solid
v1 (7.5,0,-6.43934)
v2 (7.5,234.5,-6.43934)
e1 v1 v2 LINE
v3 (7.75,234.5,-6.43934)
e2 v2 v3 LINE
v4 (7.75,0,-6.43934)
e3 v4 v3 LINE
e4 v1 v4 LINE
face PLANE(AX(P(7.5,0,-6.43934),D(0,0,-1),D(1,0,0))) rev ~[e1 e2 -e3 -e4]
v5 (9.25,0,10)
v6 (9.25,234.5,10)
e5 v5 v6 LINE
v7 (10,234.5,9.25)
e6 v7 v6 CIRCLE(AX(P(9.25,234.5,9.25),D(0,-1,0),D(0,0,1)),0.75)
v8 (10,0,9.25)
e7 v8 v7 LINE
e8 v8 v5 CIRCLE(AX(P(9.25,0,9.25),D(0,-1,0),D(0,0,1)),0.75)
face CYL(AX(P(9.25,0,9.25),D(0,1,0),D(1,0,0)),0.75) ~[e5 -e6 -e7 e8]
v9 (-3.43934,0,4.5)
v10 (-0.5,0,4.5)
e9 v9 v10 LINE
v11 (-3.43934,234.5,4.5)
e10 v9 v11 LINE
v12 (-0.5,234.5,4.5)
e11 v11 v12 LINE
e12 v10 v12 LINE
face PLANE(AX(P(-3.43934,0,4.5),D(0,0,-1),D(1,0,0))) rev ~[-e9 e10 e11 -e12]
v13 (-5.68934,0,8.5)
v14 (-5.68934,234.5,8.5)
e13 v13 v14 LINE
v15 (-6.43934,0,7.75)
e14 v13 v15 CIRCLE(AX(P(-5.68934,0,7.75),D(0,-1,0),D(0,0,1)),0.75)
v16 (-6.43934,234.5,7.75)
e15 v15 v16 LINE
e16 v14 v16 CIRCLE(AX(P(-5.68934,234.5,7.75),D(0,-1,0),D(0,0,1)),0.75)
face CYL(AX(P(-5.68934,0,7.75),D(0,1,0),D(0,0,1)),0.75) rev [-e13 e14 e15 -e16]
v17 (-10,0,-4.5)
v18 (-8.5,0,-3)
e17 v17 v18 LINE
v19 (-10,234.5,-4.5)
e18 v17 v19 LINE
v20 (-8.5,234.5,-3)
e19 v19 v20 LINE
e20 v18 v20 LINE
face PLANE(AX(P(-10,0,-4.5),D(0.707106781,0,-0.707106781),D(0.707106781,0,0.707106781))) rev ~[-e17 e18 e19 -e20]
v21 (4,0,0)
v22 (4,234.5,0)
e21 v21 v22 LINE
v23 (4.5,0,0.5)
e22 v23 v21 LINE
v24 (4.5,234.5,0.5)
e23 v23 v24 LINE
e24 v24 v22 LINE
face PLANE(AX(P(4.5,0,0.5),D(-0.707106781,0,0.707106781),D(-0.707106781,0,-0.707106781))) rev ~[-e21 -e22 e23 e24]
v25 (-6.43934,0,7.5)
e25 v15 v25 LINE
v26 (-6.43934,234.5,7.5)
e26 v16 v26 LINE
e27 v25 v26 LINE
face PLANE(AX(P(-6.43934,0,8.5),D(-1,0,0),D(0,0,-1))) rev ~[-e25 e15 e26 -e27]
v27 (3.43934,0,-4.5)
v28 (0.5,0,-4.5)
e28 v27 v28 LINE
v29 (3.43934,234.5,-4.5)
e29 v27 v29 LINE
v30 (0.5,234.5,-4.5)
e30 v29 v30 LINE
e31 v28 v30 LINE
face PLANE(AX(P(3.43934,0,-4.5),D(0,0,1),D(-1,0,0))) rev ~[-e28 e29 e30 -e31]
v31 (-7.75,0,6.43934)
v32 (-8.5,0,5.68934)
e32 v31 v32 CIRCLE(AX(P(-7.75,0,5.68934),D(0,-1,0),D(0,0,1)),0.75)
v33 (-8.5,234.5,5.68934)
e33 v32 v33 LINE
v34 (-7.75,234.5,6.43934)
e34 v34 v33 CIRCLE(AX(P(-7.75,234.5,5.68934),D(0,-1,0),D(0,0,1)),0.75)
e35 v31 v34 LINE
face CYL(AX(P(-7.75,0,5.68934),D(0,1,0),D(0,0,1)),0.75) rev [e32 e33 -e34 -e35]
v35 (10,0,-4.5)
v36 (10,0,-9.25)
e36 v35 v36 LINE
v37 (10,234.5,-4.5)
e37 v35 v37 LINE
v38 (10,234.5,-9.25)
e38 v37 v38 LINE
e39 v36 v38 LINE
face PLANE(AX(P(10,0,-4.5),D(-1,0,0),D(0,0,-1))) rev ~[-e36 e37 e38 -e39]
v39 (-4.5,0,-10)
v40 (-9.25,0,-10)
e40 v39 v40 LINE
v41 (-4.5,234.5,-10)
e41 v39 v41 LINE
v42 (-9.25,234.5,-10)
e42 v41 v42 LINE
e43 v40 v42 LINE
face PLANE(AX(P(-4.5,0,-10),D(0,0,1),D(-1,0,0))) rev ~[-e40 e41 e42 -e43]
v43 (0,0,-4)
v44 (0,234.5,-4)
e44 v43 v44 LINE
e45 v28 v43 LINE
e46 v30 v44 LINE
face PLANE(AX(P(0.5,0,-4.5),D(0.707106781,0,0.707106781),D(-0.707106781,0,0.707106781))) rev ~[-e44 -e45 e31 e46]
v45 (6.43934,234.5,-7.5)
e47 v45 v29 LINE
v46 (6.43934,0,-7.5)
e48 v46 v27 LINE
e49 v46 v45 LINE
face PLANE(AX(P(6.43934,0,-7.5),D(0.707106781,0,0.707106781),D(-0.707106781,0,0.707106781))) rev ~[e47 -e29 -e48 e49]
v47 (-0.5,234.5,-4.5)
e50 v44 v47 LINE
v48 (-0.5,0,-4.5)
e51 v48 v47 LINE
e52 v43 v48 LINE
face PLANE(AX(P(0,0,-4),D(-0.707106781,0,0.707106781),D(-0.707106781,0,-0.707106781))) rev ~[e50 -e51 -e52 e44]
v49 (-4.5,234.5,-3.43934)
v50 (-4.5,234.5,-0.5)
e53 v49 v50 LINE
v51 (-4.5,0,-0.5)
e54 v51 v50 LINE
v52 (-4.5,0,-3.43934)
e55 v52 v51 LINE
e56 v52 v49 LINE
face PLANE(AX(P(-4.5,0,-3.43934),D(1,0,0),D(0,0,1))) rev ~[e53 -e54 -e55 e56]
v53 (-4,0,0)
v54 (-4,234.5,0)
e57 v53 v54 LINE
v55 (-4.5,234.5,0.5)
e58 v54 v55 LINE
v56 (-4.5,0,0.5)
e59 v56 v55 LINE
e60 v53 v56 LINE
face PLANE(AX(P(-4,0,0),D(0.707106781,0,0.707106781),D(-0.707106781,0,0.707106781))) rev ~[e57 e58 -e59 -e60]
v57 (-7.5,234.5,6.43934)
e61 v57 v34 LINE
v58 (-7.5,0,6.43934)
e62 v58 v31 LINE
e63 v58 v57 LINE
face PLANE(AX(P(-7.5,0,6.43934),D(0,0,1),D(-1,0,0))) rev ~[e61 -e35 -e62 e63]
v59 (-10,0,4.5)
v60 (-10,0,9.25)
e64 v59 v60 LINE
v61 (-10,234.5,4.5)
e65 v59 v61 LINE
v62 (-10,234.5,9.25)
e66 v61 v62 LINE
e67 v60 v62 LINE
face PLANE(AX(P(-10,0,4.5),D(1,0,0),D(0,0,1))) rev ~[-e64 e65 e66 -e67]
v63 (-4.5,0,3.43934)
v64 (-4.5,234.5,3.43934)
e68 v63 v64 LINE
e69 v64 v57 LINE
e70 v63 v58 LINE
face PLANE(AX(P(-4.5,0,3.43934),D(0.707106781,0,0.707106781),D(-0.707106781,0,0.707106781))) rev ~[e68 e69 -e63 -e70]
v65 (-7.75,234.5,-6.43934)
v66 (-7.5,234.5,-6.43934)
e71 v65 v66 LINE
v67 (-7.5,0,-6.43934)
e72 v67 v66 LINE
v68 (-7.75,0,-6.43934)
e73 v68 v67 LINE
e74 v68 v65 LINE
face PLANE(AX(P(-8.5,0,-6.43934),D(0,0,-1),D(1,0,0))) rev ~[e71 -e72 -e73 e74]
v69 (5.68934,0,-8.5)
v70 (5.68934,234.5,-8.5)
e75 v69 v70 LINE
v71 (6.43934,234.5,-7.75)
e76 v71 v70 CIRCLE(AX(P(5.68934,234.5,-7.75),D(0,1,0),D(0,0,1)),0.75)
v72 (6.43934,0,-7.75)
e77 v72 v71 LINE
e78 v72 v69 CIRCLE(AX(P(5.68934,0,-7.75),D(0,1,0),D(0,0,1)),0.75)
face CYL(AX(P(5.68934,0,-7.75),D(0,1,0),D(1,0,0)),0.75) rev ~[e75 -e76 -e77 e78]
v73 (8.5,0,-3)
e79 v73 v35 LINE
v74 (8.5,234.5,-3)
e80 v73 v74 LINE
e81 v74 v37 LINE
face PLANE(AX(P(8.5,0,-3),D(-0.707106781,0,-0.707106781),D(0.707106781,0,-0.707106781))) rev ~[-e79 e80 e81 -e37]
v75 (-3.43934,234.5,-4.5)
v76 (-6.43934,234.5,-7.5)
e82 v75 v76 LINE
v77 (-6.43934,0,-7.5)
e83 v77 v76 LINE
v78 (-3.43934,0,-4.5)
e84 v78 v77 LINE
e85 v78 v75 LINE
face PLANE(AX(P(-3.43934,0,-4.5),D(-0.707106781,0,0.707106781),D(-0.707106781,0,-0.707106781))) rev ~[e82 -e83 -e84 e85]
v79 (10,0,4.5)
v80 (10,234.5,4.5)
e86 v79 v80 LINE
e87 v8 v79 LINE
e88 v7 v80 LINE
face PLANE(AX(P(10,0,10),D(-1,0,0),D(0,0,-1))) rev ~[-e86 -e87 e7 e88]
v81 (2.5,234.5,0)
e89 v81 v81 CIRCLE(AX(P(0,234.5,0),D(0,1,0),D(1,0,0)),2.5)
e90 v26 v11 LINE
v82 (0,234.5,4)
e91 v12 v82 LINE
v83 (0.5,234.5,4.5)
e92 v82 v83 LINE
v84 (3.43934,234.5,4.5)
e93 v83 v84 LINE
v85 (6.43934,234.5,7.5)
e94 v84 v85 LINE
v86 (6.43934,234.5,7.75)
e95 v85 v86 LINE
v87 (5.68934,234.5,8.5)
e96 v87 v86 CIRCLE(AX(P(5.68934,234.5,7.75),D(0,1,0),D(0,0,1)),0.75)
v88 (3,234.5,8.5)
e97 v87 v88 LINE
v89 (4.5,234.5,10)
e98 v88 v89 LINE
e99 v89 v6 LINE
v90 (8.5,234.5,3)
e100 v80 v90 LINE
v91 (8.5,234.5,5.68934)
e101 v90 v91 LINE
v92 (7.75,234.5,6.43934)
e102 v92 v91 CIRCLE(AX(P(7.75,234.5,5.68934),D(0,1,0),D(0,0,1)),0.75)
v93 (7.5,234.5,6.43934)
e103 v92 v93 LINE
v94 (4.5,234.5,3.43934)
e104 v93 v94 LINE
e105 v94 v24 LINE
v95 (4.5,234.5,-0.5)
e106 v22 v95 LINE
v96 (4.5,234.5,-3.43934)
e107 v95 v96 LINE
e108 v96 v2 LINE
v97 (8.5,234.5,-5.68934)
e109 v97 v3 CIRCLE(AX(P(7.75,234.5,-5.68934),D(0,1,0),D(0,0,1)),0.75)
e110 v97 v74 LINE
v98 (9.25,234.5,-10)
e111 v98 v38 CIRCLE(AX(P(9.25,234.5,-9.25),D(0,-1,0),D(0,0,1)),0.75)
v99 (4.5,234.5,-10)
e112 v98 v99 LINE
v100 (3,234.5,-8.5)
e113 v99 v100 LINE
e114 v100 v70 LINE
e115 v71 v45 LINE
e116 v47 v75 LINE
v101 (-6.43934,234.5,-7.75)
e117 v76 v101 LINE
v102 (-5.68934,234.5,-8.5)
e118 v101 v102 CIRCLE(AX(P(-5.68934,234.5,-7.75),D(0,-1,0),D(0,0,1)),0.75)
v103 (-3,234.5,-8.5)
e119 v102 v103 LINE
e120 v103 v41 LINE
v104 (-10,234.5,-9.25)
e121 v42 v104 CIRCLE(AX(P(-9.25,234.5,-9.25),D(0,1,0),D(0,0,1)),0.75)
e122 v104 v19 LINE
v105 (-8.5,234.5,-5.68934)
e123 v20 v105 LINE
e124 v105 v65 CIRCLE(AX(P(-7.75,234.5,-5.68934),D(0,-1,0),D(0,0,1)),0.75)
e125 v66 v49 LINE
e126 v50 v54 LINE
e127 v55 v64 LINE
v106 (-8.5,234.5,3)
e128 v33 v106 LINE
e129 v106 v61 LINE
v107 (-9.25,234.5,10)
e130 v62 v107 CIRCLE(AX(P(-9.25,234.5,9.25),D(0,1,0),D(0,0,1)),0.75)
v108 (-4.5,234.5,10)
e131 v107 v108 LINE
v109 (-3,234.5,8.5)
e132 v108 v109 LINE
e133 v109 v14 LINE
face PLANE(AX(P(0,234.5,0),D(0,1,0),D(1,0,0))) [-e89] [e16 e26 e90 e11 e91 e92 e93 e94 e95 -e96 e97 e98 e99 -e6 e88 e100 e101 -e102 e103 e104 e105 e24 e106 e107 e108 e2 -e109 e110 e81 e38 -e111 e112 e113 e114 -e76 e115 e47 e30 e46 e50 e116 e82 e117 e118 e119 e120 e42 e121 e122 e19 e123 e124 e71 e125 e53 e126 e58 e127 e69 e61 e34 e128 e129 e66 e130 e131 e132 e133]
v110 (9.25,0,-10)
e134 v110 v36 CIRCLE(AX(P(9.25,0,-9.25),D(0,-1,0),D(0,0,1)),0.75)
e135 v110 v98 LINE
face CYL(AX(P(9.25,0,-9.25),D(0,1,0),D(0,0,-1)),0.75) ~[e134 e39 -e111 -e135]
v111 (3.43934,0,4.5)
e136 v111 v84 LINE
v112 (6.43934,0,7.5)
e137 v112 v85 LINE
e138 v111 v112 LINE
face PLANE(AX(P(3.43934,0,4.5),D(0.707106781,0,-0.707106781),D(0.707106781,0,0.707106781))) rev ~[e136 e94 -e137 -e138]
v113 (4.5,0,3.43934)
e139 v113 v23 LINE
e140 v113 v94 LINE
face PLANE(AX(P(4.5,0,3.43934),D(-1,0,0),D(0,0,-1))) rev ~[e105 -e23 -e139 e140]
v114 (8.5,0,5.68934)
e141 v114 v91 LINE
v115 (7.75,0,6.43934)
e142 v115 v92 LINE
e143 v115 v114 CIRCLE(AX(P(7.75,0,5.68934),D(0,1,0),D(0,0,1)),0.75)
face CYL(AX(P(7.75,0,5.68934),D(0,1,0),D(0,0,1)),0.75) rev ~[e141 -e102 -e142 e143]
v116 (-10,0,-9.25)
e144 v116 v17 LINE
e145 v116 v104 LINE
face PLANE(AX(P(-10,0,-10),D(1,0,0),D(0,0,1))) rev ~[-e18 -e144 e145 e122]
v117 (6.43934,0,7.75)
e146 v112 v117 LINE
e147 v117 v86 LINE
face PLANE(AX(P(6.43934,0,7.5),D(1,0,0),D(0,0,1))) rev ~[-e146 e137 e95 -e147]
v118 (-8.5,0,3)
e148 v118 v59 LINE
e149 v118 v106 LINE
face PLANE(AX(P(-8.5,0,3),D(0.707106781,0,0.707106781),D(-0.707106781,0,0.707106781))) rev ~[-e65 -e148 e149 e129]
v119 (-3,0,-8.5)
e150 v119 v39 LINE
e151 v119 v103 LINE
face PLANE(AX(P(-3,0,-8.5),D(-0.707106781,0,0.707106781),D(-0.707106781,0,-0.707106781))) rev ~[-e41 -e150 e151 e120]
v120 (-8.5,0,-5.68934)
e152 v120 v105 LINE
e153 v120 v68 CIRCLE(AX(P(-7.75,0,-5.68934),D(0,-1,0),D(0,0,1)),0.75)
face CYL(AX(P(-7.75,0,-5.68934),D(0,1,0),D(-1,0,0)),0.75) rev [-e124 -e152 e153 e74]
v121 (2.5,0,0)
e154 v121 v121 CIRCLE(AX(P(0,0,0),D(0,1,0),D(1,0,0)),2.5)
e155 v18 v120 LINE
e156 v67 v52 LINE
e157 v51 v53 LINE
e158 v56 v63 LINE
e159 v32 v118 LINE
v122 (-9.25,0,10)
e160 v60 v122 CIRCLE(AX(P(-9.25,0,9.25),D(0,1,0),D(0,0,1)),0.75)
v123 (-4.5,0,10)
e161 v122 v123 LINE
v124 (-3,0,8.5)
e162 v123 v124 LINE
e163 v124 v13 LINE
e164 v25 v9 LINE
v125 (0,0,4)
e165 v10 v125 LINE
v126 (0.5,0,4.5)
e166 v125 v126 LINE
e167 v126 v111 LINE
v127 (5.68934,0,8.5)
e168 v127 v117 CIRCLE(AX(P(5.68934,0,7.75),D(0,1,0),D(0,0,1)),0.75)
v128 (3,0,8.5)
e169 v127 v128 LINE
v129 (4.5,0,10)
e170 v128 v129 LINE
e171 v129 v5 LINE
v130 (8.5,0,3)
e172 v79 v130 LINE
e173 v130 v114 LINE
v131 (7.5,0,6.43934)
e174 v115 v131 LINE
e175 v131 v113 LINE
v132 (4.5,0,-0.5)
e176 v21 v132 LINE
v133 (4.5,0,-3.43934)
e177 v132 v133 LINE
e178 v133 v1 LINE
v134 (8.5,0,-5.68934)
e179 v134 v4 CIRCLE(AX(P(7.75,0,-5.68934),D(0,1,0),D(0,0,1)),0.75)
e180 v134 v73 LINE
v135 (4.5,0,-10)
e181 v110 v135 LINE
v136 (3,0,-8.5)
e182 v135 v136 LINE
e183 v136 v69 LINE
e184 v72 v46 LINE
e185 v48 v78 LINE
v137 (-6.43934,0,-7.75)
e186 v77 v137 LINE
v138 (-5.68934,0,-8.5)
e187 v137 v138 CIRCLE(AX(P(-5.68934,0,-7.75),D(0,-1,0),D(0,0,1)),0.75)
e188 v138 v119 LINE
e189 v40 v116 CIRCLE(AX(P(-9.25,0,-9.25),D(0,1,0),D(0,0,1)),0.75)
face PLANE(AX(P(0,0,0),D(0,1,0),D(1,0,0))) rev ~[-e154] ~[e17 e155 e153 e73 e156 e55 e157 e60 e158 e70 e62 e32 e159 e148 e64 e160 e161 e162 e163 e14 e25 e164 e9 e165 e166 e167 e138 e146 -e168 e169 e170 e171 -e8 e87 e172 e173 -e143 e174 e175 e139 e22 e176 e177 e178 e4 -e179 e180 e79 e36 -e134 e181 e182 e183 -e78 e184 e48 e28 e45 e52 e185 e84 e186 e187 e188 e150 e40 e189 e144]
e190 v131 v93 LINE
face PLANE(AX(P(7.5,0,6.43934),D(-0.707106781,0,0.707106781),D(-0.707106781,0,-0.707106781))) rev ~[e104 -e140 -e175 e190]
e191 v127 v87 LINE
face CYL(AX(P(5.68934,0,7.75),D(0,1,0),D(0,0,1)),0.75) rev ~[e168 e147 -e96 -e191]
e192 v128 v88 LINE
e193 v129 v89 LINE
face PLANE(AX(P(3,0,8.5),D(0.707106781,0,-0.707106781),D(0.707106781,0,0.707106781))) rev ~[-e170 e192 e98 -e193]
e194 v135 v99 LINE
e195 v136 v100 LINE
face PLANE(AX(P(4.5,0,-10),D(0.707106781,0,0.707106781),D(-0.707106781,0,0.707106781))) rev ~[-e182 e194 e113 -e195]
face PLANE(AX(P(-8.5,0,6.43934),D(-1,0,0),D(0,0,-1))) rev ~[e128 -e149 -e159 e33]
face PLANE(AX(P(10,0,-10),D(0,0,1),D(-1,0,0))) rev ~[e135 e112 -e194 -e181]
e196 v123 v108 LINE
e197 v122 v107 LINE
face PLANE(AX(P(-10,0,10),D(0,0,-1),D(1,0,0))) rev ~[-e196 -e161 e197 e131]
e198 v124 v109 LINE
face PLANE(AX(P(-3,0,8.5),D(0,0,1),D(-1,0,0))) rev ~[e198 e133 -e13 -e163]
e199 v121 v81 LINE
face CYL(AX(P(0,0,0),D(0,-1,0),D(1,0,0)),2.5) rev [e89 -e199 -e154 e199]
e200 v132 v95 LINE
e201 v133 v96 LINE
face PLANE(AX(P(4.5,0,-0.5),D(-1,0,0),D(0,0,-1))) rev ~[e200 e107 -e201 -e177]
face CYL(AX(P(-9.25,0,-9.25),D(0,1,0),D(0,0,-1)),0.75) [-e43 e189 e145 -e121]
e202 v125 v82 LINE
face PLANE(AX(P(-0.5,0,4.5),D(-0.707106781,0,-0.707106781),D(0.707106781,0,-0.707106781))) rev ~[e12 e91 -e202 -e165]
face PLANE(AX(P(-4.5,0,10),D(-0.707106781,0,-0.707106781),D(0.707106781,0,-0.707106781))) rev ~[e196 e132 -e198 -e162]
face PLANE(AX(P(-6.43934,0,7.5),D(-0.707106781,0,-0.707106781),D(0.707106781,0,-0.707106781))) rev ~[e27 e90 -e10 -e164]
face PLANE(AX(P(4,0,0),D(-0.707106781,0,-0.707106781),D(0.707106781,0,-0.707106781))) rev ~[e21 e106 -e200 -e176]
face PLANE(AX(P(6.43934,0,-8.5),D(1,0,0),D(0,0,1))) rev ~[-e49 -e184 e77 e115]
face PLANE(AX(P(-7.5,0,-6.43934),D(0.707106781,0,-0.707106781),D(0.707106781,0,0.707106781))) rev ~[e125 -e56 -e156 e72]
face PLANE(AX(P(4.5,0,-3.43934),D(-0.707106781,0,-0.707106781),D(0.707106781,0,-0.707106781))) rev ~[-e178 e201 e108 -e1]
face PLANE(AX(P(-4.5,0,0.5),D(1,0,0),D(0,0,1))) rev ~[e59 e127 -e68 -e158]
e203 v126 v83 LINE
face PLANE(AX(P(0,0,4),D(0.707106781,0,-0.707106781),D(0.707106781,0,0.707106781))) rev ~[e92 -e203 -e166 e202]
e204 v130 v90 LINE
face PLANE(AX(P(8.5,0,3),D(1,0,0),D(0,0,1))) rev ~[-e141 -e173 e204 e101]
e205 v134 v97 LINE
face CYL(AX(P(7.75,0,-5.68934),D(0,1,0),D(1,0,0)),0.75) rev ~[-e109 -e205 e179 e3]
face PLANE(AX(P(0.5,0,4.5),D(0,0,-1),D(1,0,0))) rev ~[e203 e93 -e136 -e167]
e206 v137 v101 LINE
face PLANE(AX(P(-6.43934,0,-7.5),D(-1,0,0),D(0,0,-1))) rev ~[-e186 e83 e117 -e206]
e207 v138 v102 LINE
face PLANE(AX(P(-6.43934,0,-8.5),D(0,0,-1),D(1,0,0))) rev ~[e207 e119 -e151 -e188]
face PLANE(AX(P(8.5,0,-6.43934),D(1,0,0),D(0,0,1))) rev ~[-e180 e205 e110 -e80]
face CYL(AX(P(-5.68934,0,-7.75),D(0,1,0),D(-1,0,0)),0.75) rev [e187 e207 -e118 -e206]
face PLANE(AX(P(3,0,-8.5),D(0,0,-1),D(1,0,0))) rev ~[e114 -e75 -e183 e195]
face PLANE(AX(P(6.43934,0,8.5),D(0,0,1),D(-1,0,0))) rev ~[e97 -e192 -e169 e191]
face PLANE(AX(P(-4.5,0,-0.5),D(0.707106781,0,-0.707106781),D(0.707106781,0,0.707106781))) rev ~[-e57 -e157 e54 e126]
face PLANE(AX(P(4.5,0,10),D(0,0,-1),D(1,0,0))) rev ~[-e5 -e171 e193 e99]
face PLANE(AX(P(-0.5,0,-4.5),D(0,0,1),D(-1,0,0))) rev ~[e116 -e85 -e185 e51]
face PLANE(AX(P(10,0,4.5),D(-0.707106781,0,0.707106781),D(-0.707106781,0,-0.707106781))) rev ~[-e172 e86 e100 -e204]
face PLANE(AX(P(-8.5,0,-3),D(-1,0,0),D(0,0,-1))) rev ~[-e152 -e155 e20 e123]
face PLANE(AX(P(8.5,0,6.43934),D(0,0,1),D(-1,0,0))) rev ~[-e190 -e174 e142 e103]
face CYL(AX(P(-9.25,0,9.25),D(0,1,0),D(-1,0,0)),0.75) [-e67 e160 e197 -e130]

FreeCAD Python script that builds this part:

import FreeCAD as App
import Part
import Sketcher


def edges_at(feature, points):
    """Names of the edges that pass closest to the given points."""
    edges = feature.Shape.Edges
    near = lambda p: min(range(len(edges)), key=lambda i: edges[i].distToShape(Part.Vertex(*p))[0])
    return sorted({f"Edge{near(p) + 1}" for p in points})


def add_polygon(sketch, points):
    """Adds a closed chain of lines whose ends are joined by coincident constraints."""
    first, n = sketch.GeometryCount, len(points)
    for a, b in zip(points, points[1:] + points[:1]):
        sketch.addGeometry(Part.LineSegment(App.Vector(*a, 0), App.Vector(*b, 0)), False)
    for i in range(n):
        sketch.addConstraint(Sketcher.Constraint("Coincident", first + i, 2, first + (i + 1) % n, 1))

doc = App.newDocument("Part")
body = doc.addObject("PartDesign::Body", "Body")

sketch1 = body.newObject("Sketcher::SketchObject", "Sketch")
sketch1.AttachmentSupport = (doc.getObject("XZ_Plane"), [""])
sketch1.MapMode = "FlatFace"
add_polygon(sketch1, [(0, -4), (-0.5, -4.5), (-3.4, -4.5), (-6.4, -7.5), (-6.4, -8.5), (-3, -8.5), (-4.5, -10), (-10, -10), (-10, -4.5), (-8.5, -3), (-8.5, -6.4), (-7.5, -6.4), (-4.5, -3.4), (-4.5, -0.5), (-4, 0), (-4.5, 0.5), (-4.5, 3.4), (-7.5, 6.4), (-8.5, 6.4), (-8.5, 3), (-10, 4.5), (-10, 10), (-4.5, 10), (-3, 8.5), (-6.4, 8.5), (-6.4, 7.5), (-3.4, 4.5), (-0.5, 4.5), (0, 4), (0.5, 4.5), (3.4, 4.5), (6.4, 7.5), (6.4, 8.5), (3, 8.5), (4.5, 10), (10, 10), (10, 4.5), (8.5, 3), (8.5, 6.4), (7.5, 6.4), (4.5, 3.4), (4.5, 0.5), (4, 0), (4.5, -0.5), (4.5, -3.4), (7.5, -6.4), (8.5, -6.4), (8.5, -3), (10, -4.5), (10, -10), (4.5, -10), (3, -8.5), (6.4, -8.5), (6.4, -7.5), (3.4, -4.5), (0.5, -4.5)])
sketch1.addGeometry(Part.Circle(App.Vector(0, 0, 0), App.Vector(0, 0, 1), 2.5), False)
sketch1.addConstraint([
    Sketcher.Constraint("Horizontal", 1),
    Sketcher.Constraint("Vertical", 3),
    Sketcher.Constraint("Horizontal", 4),
    Sketcher.Constraint("Horizontal", 6),
    Sketcher.Constraint("Vertical", 7),
    Sketcher.Constraint("Vertical", 9),
    Sketcher.Constraint("Horizontal", 10),
    Sketcher.Constraint("Vertical", 12),
    Sketcher.Constraint("Vertical", 15),
    Sketcher.Constraint("Horizontal", 17),
    Sketcher.Constraint("Vertical", 18),
    Sketcher.Constraint("Vertical", 20),
    Sketcher.Constraint("Horizontal", 21),
    Sketcher.Constraint("Horizontal", 23),
    Sketcher.Constraint("Vertical", 24),
    Sketcher.Constraint("Horizontal", 26),
    Sketcher.Constraint("Horizontal", 29),
    Sketcher.Constraint("Vertical", 31),
    Sketcher.Constraint("Horizontal", 32),
    Sketcher.Constraint("Horizontal", 34),
    Sketcher.Constraint("Vertical", 35),
    Sketcher.Constraint("Vertical", 37),
    Sketcher.Constraint("Horizontal", 38),
    Sketcher.Constraint("Vertical", 40),
    Sketcher.Constraint("Vertical", 43),
    Sketcher.Constraint("Horizontal", 45),
    Sketcher.Constraint("Vertical", 46),
    Sketcher.Constraint("Vertical", 48),
    Sketcher.Constraint("Horizontal", 49),
    Sketcher.Constraint("Horizontal", 51),
    Sketcher.Constraint("Vertical", 52),
    Sketcher.Constraint("Horizontal", 54),
    Sketcher.Constraint("Coincident", 56, 3, -1, 1),
    Sketcher.Constraint("Symmetric", 0, 2, 28, 2, -1, 1),
    Sketcher.Constraint("Symmetric", 2, 2, 30, 2, -1, 1),
    Sketcher.Constraint("Symmetric", 4, 2, 32, 2, -1, 1),
    Sketcher.Constraint("Symmetric", 5, 2, 33, 2, -1, 1),
    Sketcher.Constraint("Symmetric", 7, 2, 35, 2, -1, 1),
    Sketcher.Constraint("Symmetric", 8, 2, 36, 2, -1, 1),
    Sketcher.Constraint("Symmetric", 10, 2, 38, 2, -1, 1),
    Sketcher.Constraint("Symmetric", 11, 2, 39, 2, -1, 1),
    Sketcher.Constraint("Symmetric", 13, 2, 41, 2, -1, 1),
    Sketcher.Constraint("Symmetric", 14, 2, 42, 2, -1, 1),
    Sketcher.Constraint("Symmetric", 16, 2, 44, 2, -1, 1),
    Sketcher.Constraint("Symmetric", 18, 2, 46, 2, -1, 1),
    Sketcher.Constraint("Symmetric", 19, 2, 47, 2, -1, 1),
    Sketcher.Constraint("Symmetric", 21, 2, 49, 2, -1, 1),
    Sketcher.Constraint("Symmetric", 22, 2, 50, 2, -1, 1),
    Sketcher.Constraint("Symmetric", 24, 2, 52, 2, -1, 1),
    Sketcher.Constraint("Symmetric", 25, 2, 53, 2, -1, 1),
    Sketcher.Constraint("Symmetric", 27, 2, 55, 2, -1, 1),
    Sketcher.Constraint("Symmetric", 26, 2, 28, 2, -2),
    Sketcher.Constraint("Symmetric", 24, 2, 30, 2, -2),
    Sketcher.Constraint("Symmetric", 22, 2, 32, 2, -2),
    Sketcher.Constraint("Symmetric", 21, 2, 33, 2, -2),
    Sketcher.Constraint("Symmetric", 19, 2, 35, 2, -2),
    Sketcher.Constraint("Symmetric", 18, 2, 36, 2, -2),
    Sketcher.Constraint("Symmetric", 16, 2, 38, 2, -2),
    Sketcher.Constraint("Symmetric", 15, 2, 39, 2, -2),
    Sketcher.Constraint("PointOnObject", 13, 2, -1),
    Sketcher.Constraint("PointOnObject", 27, 2, -2),
    Sketcher.Constraint("Parallel", 0, 2),
    Sketcher.Constraint("Parallel", 2, 5),
    Sketcher.Constraint("Parallel", 5, 8),
    Sketcher.Constraint("Parallel", 8, 11),
    Sketcher.Constraint("Parallel", 11, 13),
    Sketcher.Constraint("Perpendicular", 13, 14),
    Sketcher.Constraint("Parallel", 14, 16),
    Sketcher.Constraint("Parallel", 22, 25),
    Sketcher.Constraint("Parallel", 28, 30),
    Sketcher.Constraint("Parallel", 39, 41),
    Sketcher.Constraint("Parallel", 42, 44),
    Sketcher.Constraint("Parallel", 53, 55),
    Sketcher.Constraint("Horizontal", 1, 2, 7, 2),
    Sketcher.Constraint("Vertical", 5, 2, 11, 2),
    Sketcher.Constraint("Equal", 45, 3),
    Sketcher.Constraint("Equal", 49, 7),
    Sketcher.Constraint("Equal", 51, 9),
    Sketcher.Constraint("Equal", 54, 12),
    Sketcher.Constraint("Equal", 5, 8),
    Sketcher.Constraint("Equal", 0, 13),
    Sketcher.Constraint("Diameter", 56, 5.0),
    Sketcher.Constraint("DistanceX", 10, 1, 10, 2, 1.0),
    Sketcher.Constraint("DistanceX", 6, 2, 6, 1, 5.5),
    Sketcher.Constraint("DistanceX", 4, 2, -1, 1, 3.0),
    Sketcher.Constraint("DistanceY", 5, 2, -1, 1, 10.0),
    Sketcher.Constraint("DistanceX", 13, 2, -1, 1, 4.0),
    Sketcher.Constraint("DistanceX", 1, 2, 1, 1, 2.93934),
])
pad1 = body.newObject("PartDesign::Pad", "Pad")
pad1.Profile = sketch1
pad1.Length = 234.5
pad1.Reversed = True
doc.recompute()

fillet = body.newObject("PartDesign::Fillet", "Fillet")
fillet.Base = (pad1, edges_at(pad1, [
    (6.439, 117.25, -8.5),
    (10, 117.25, -10),
    (8.5, 117.25, -6.439),
    (8.5, 117.25, 6.439),
    (10, 117.25, 10),
    (6.439, 117.25, 8.5),
    (-6.439, 117.25, 8.5),
    (-10, 117.25, 10),
    (-8.5, 117.25, 6.439),
    (-8.5, 117.25, -6.439),
    (-10, 117.25, -10),
    (-6.439, 117.25, -8.5),
]))
fillet.Radius = 0.75

doc.recompute()
